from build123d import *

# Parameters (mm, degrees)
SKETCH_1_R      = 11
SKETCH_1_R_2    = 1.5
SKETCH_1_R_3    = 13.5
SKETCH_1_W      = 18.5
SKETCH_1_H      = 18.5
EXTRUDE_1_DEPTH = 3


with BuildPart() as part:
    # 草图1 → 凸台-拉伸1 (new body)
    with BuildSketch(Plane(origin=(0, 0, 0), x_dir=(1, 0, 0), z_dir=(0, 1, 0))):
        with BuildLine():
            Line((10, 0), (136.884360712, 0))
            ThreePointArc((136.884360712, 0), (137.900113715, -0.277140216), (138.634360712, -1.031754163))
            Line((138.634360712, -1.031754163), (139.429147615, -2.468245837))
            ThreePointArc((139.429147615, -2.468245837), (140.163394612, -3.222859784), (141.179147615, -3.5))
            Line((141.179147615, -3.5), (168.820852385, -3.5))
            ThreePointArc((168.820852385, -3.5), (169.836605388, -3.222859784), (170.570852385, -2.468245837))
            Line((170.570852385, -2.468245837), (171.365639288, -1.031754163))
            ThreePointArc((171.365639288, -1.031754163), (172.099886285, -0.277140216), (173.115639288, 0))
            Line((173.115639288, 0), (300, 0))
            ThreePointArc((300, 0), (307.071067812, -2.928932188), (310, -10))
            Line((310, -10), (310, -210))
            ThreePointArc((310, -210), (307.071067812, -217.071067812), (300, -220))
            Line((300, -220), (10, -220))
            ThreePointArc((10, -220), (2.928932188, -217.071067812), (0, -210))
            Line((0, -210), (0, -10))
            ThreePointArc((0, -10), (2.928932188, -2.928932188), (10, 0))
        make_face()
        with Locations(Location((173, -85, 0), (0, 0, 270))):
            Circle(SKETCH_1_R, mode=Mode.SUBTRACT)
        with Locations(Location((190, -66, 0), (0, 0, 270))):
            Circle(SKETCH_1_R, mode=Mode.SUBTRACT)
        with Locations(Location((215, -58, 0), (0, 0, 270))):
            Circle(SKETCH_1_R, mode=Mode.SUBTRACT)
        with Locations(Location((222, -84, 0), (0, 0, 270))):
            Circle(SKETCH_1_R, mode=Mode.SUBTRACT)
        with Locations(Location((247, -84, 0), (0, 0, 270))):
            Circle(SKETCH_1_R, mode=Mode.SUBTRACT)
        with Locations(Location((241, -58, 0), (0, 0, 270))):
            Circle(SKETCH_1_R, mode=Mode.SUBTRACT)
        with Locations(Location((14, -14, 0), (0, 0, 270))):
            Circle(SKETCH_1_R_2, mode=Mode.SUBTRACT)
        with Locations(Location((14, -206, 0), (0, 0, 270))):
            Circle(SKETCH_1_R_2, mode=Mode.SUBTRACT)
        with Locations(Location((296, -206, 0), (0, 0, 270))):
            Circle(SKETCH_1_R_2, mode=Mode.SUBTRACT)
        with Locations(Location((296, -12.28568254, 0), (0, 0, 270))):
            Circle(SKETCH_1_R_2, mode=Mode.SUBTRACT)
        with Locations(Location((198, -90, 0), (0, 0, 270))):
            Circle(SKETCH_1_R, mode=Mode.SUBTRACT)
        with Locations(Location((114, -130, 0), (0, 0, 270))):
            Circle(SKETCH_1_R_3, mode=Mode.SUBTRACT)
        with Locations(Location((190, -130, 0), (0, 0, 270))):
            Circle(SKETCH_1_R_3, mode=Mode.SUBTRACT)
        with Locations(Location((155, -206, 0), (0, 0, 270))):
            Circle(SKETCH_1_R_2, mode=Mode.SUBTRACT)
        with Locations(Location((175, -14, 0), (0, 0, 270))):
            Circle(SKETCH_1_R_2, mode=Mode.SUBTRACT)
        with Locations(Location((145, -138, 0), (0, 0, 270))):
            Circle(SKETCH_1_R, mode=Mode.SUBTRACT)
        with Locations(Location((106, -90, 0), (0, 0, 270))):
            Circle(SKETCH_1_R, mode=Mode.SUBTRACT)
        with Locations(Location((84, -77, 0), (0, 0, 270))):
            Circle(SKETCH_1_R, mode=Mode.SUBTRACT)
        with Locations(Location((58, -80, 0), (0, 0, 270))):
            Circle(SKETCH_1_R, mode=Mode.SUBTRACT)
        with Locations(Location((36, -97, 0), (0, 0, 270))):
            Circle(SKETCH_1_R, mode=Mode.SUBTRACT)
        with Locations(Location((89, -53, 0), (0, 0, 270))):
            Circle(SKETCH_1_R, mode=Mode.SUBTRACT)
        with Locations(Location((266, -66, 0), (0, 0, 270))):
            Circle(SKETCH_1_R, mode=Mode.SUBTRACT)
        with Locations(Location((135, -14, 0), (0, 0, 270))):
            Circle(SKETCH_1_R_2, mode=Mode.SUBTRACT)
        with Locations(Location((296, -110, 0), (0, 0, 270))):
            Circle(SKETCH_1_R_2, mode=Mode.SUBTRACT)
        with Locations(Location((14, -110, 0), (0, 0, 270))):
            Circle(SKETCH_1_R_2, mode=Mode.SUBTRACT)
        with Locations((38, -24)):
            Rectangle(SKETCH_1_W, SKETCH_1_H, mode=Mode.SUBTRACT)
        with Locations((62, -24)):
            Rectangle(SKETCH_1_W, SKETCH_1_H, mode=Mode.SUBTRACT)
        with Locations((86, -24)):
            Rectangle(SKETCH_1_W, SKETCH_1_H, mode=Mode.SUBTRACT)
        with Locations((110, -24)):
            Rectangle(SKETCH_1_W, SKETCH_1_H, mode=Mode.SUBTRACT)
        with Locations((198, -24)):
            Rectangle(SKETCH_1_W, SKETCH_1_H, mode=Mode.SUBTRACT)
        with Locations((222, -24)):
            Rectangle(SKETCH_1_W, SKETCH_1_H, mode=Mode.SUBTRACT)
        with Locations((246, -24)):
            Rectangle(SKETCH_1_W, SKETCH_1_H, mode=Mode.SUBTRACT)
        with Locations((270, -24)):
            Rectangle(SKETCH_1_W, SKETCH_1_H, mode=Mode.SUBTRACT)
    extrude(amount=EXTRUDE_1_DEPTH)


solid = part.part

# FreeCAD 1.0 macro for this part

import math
import FreeCAD as App
import Part
import Sketcher
from FreeCAD import Vector


def add_polygon(sketch, points):
    """Adds a closed chain of lines whose ends are joined by coincident constraints."""
    first, n = sketch.GeometryCount, len(points)
    for a, b in zip(points, points[1:] + points[:1]):
        sketch.addGeometry(Part.LineSegment(App.Vector(*a, 0), App.Vector(*b, 0)), False)
    for i in range(n):
        sketch.addConstraint(Sketcher.Constraint("Coincident", first + i, 2, first + (i + 1) % n, 1))

doc = App.newDocument("Part")
body = doc.addObject("PartDesign::Body", "Body")

sketch1 = body.newObject("Sketcher::SketchObject", "Sketch")
sketch1.AttachmentSupport = (doc.getObject("XZ_Plane"), [""])
sketch1.MapMode = "FlatFace"
sketch1.addGeometry(Part.LineSegment(Vector(136.9, 0, 0), Vector(10, 0, 0)), False)
sketch1.addGeometry(Part.ArcOfCircle(Part.Circle(Vector(10, 10, 0), Vector(0, 0, 1), 10), math.radians(180), math.radians(270)), False)
sketch1.addGeometry(Part.LineSegment(Vector(0, 10, 0), Vector(0, 210, 0)), False)
sketch1.addGeometry(Part.ArcOfCircle(Part.Circle(Vector(10, 210, 0), Vector(0, 0, 1), 10), math.radians(90), math.radians(180)), False)
sketch1.addGeometry(Part.LineSegment(Vector(10, 220, 0), Vector(300, 220, 0)), False)
sketch1.addGeometry(Part.ArcOfCircle(Part.Circle(Vector(300, 210, 0), Vector(0, 0, 1), 10), math.radians(0), math.radians(90)), False)
sketch1.addGeometry(Part.LineSegment(Vector(310, 210, 0), Vector(310, 10, 0)), False)
sketch1.addGeometry(Part.ArcOfCircle(Part.Circle(Vector(300, 10, 0), Vector(0, 0, 1), 10), math.radians(-90), math.radians(0)), False)
sketch1.addGeometry(Part.LineSegment(Vector(300, 0, 0), Vector(173.1, 0, 0)), False)
sketch1.addGeometry(Part.ArcOfCircle(Part.Circle(Vector(173.1, 2, 0), Vector(0, 0, 1), 2), math.radians(-151), math.radians(-90)), False)
sketch1.addGeometry(Part.LineSegment(Vector(171.4, 1, 0), Vector(170.6, 2.5, 0)), False)
sketch1.addGeometry(Part.ArcOfCircle(Part.Circle(Vector(168.8, 1.5, 0), Vector(0, 0, 1), 2), math.radians(29), math.radians(90)), False)
sketch1.addGeometry(Part.LineSegment(Vector(168.8, 3.5, 0), Vector(141.2, 3.5, 0)), False)
sketch1.addGeometry(Part.ArcOfCircle(Part.Circle(Vector(141.2, 1.5, 0), Vector(0, 0, 1), 2), math.radians(90), math.radians(151)), False)
sketch1.addGeometry(Part.LineSegment(Vector(139.4, 2.5, 0), Vector(138.6, 1, 0)), False)
sketch1.addGeometry(Part.ArcOfCircle(Part.Circle(Vector(136.9, 2, 0), Vector(0, 0, 1), 2), math.radians(-90), math.radians(-29)), False)
sketch1.addGeometry(Part.Circle(Vector(296, 206, 0), Vector(0, 0, 1), 1.5), False)
sketch1.addGeometry(Part.Circle(Vector(296, 110, 0), Vector(0, 0, 1), 1.5), False)
sketch1.addGeometry(Part.Circle(Vector(190, 130, 0), Vector(0, 0, 1), 13.5), False)
sketch1.addGeometry(Part.Circle(Vector(155, 206, 0), Vector(0, 0, 1), 1.5), False)
sketch1.addGeometry(Part.Circle(Vector(14, 206, 0), Vector(0, 0, 1), 1.5), False)
sketch1.addGeometry(Part.Circle(Vector(145, 138, 0), Vector(0, 0, 1), 11), False)
sketch1.addGeometry(Part.Circle(Vector(114, 130, 0), Vector(0, 0, 1), 13.5), False)
sketch1.addGeometry(Part.Circle(Vector(14, 110, 0), Vector(0, 0, 1), 1.5), False)
sketch1.addGeometry(Part.Circle(Vector(266, 66, 0), Vector(0, 0, 1), 11), False)
sketch1.addGeometry(Part.Circle(Vector(247, 84, 0), Vector(0, 0, 1), 11), False)
sketch1.addGeometry(Part.Circle(Vector(198, 90, 0), Vector(0, 0, 1), 11), False)
sketch1.addGeometry(Part.Circle(Vector(173, 85, 0), Vector(0, 0, 1), 11), False)
sketch1.addGeometry(Part.Circle(Vector(222, 84, 0), Vector(0, 0, 1), 11), False)
sketch1.addGeometry(Part.Circle(Vector(190, 66, 0), Vector(0, 0, 1), 11), False)
sketch1.addGeometry(Part.Circle(Vector(241, 58, 0), Vector(0, 0, 1), 11), False)
add_polygon(sketch1, [(260.8, 33.2), (260.8, 14.8), (279.2, 14.8), (279.2, 33.2)])
sketch1.addGeometry(Part.Circle(Vector(296, 12.3, 0), Vector(0, 0, 1), 1.5), False)
add_polygon(sketch1, [(236.8, 33.2), (236.8, 14.8), (255.2, 14.8), (255.2, 33.2)])
sketch1.addGeometry(Part.Circle(Vector(215, 58, 0), Vector(0, 0, 1), 11), False)
add_polygon(sketch1, [(212.8, 33.2), (212.8, 14.8), (231.2, 14.8), (231.2, 33.2)])
add_polygon(sketch1, [(188.8, 33.2), (188.8, 14.8), (207.2, 14.8), (207.2, 33.2)])
sketch1.addGeometry(Part.Circle(Vector(175, 14, 0), Vector(0, 0, 1), 1.5), False)
sketch1.addGeometry(Part.Circle(Vector(106, 90, 0), Vector(0, 0, 1), 11), False)
sketch1.addGeometry(Part.Circle(Vector(84, 77, 0), Vector(0, 0, 1), 11), False)
sketch1.addGeometry(Part.Circle(Vector(36, 97, 0), Vector(0, 0, 1), 11), False)
sketch1.addGeometry(Part.Circle(Vector(58, 80, 0), Vector(0, 0, 1), 11), False)
sketch1.addGeometry(Part.Circle(Vector(89, 53, 0), Vector(0, 0, 1), 11), False)
sketch1.addGeometry(Part.Circle(Vector(135, 14, 0), Vector(0, 0, 1), 1.5), False)
add_polygon(sketch1, [(100.8, 33.2), (100.8, 14.8), (119.2, 14.8), (119.2, 33.2)])
add_polygon(sketch1, [(76.8, 33.2), (76.8, 14.8), (95.2, 14.8), (95.2, 33.2)])
add_polygon(sketch1, [(52.8, 33.2), (52.8, 14.8), (71.2, 14.8), (71.2, 33.2)])
add_polygon(sketch1, [(28.8, 33.2), (28.8, 14.8), (47.2, 14.8), (47.2, 33.2)])
sketch1.addGeometry(Part.Circle(Vector(14, 14, 0), Vector(0, 0, 1), 1.5), False)
sketch1.addConstraint([
    Sketcher.Constraint("Tangent", 0, 2, 1, 2),
    Sketcher.Constraint("Tangent", 1, 1, 2, 1),
    Sketcher.Constraint("Tangent", 2, 2, 3, 2),
    Sketcher.Constraint("Tangent", 3, 1, 4, 1),
    Sketcher.Constraint("Tangent", 4, 2, 5, 2),
    Sketcher.Constraint("Tangent", 5, 1, 6, 1),
    Sketcher.Constraint("Tangent", 6, 2, 7, 2),
    Sketcher.Constraint("Tangent", 7, 1, 8, 1),
    Sketcher.Constraint("Tangent", 8, 2, 9, 2),
    Sketcher.Constraint("Tangent", 9, 1, 10, 1),
    Sketcher.Constraint("Tangent", 10, 2, 11, 1),
    Sketcher.Constraint("Tangent", 11, 2, 12, 1),
    Sketcher.Constraint("Tangent", 12, 2, 13, 1),
    Sketcher.Constraint("Tangent", 13, 2, 14, 1),
    Sketcher.Constraint("Tangent", 14, 2, 15, 2),
    Sketcher.Constraint("Tangent", 15, 1, 0, 1),
    Sketcher.Constraint("Horizontal", 0),
    Sketcher.Constraint("Vertical", 2),
    Sketcher.Constraint("Horizontal", 4),
    Sketcher.Constraint("Vertical", 6),
    Sketcher.Constraint("Horizontal", 8),
    Sketcher.Constraint("Horizontal", 12),
    Sketcher.Constraint("Vertical", 31),
    Sketcher.Constraint("Horizontal", 32),
    Sketcher.Constraint("Vertical", 33),
    Sketcher.Constraint("Horizontal", 34),
    Sketcher.Constraint("Vertical", 36),
    Sketcher.Constraint("Horizontal", 37),
    Sketcher.Constraint("Vertical", 38),
    Sketcher.Constraint("Horizontal", 39),
    Sketcher.Constraint("Vertical", 41),
    Sketcher.Constraint("Horizontal", 42),
    Sketcher.Constraint("Vertical", 43),
    Sketcher.Constraint("Horizontal", 44),
    Sketcher.Constraint("Vertical", 45),
    Sketcher.Constraint("Horizontal", 46),
    Sketcher.Constraint("Vertical", 47),
    Sketcher.Constraint("Horizontal", 48),
    Sketcher.Constraint("Vertical", 56),
    Sketcher.Constraint("Horizontal", 57),
    Sketcher.Constraint("Vertical", 58),
    Sketcher.Constraint("Horizontal", 59),
    Sketcher.Constraint("Vertical", 60),
    Sketcher.Constraint("Horizontal", 61),
    Sketcher.Constraint("Vertical", 62),
    Sketcher.Constraint("Horizontal", 63),
    Sketcher.Constraint("Vertical", 64),
    Sketcher.Constraint("Horizontal", 65),
    Sketcher.Constraint("Vertical", 66),
    Sketcher.Constraint("Horizontal", 67),
    Sketcher.Constraint("Vertical", 68),
    Sketcher.Constraint("Horizontal", 69),
    Sketcher.Constraint("Vertical", 70),
    Sketcher.Constraint("Horizontal", 71),
    Sketcher.Constraint("Equal", 1, 3),
    Sketcher.Constraint("Equal", 3, 5),
    Sketcher.Constraint("Equal", 5, 7),
    Sketcher.Constraint("Equal", 9, 11),
    Sketcher.Constraint("Equal", 11, 13),
    Sketcher.Constraint("Equal", 13, 15),
    Sketcher.Constraint("Equal", 16, 17),
    Sketcher.Constraint("Equal", 17, 19),
    Sketcher.Constraint("Equal", 19, 20),
    Sketcher.Constraint("Equal", 18, 22),
    Sketcher.Constraint("Equal", 20, 23),
    Sketcher.Constraint("Equal", 21, 24),
    Sketcher.Constraint("Equal", 24, 25),
    Sketcher.Constraint("Equal", 25, 26),
    Sketcher.Constraint("Equal", 26, 27),
    Sketcher.Constraint("Equal", 27, 28),
    Sketcher.Constraint("Equal", 28, 29),
    Sketcher.Constraint("Equal", 29, 30),
    Sketcher.Constraint("Equal", 23, 35),
    Sketcher.Constraint("Equal", 30, 40),
    Sketcher.Constraint("Equal", 35, 49),
    Sketcher.Constraint("Equal", 40, 50),
    Sketcher.Constraint("Equal", 50, 51),
    Sketcher.Constraint("Equal", 51, 52),
    Sketcher.Constraint("Equal", 52, 53),
    Sketcher.Constraint("Equal", 53, 54),
    Sketcher.Constraint("Equal", 49, 55),
    Sketcher.Constraint("Equal", 55, 72),
    Sketcher.Constraint("PointOnObject", 0, 2, -1),
    Sketcher.Constraint("PointOnObject", 1, 1, -2),
    Sketcher.Constraint("PointOnObject", 7, 1, -1),
    Sketcher.Constraint("Horizontal", 16, 3, 19, 3),
    Sketcher.Constraint("Horizontal", 19, 3, 20, 3),
    Sketcher.Constraint("Horizontal", 18, 3, 22, 3),
    Sketcher.Constraint("Horizontal", 17, 3, 23, 3),
    Sketcher.Constraint("Horizontal", 25, 3, 28, 3),
    Sketcher.Constraint("Horizontal", 24, 3, 29, 3),
    Sketcher.Constraint("Horizontal", 30, 3, 40, 3),
    Sketcher.Constraint("Horizontal", 26, 3, 50, 3),
    Sketcher.Constraint("Horizontal", 49, 3, 55, 3),
    Sketcher.Constraint("Horizontal", 55, 3, 72, 3),
    Sketcher.Constraint("Horizontal", 10, 2, 13, 2),
    Sketcher.Constraint("Horizontal", 32, 2, 36, 2),
    Sketcher.Constraint("Horizontal", 34, 2, 38, 2),
    Sketcher.Constraint("Horizontal", 37, 2, 41, 2),
    Sketcher.Constraint("Horizontal", 39, 2, 43, 2),
    Sketcher.Constraint("Horizontal", 42, 2, 45, 2),
    Sketcher.Constraint("Horizontal", 44, 2, 47, 2),
    Sketcher.Constraint("Horizontal", 46, 2, 56, 2),
    Sketcher.Constraint("Horizontal", 48, 2, 58, 2),
    Sketcher.Constraint("Horizontal", 57, 2, 60, 2),
    Sketcher.Constraint("Horizontal", 59, 2, 62, 2),
    Sketcher.Constraint("Horizontal", 61, 2, 64, 2),
    Sketcher.Constraint("Horizontal", 63, 2, 66, 2),
    Sketcher.Constraint("Horizontal", 65, 2, 68, 2),
    Sketcher.Constraint("Horizontal", 67, 2, 70, 2),
    Sketcher.Constraint("Vertical", 16, 3, 17, 3),
    Sketcher.Constraint("Vertical", 20, 3, 23, 3),
    Sketcher.Constraint("Vertical", 18, 3, 29, 3),
    Sketcher.Constraint("Vertical", 17, 3, 35, 3),
    Sketcher.Constraint("Vertical", 23, 3, 72, 3),
    Sketcher.Constraint("Equal", 0, 8),
    Sketcher.Constraint("Equal", 34, 37),
    Sketcher.Constraint("Equal", 39, 42),
    Sketcher.Constraint("Equal", 44, 46),
    Sketcher.Constraint("Equal", 48, 57),
    Sketcher.Constraint("Equal", 59, 61),
    Sketcher.Constraint("Equal", 63, 65),
    Sketcher.Constraint("Equal", 67, 69),
    Sketcher.Constraint("Equal", 71, 31),
    Sketcher.Constraint("Diameter", 16, 3.0),
    Sketcher.Constraint("Diameter", 18, 27.0),
    Sketcher.Constraint("Diameter", 21, 22.0),
    Sketcher.Constraint("Radius", 1, 10.0),
    Sketcher.Constraint("Radius", 9, 2.0),
    Sketcher.Constraint("DistanceX", 4, 1, 4, 2, 290.0),
    Sketcher.Constraint("DistanceY", 2, 1, 2, 2, 200.0),
    Sketcher.Constraint("DistanceX", 32, 1, 32, 2, 18.5),
    Sketcher.Constraint("DistanceX", -1, 1, 16, 3, 296.0),
    Sketcher.Constraint("DistanceY", -1, 1, 16, 3, 206.0),
    Sketcher.Constraint("DistanceY", -1, 1, 17, 3, 110.0),
    Sketcher.Constraint("DistanceX", -1, 1, 18, 3, 190.0),
    Sketcher.Constraint("DistanceY", -1, 1, 18, 3, 130.0),
    Sketcher.Constraint("DistanceX", -1, 1, 19, 3, 155.0),
    Sketcher.Constraint("DistanceX", -1, 1, 20, 3, 14.0),
    Sketcher.Constraint("DistanceX", -1, 1, 21, 3, 145.0),
    Sketcher.Constraint("DistanceY", -1, 1, 21, 3, 138.0),
    Sketcher.Constraint("DistanceX", -1, 1, 22, 3, 114.0),
    Sketcher.Constraint("DistanceX", -1, 1, 24, 3, 266.0),
    Sketcher.Constraint("DistanceY", -1, 1, 24, 3, 66.0),
    Sketcher.Constraint("DistanceX", -1, 1, 25, 3, 247.0),
    Sketcher.Constraint("DistanceY", -1, 1, 25, 3, 84.0),
    Sketcher.Constraint("DistanceX", -1, 1, 26, 3, 198.0),
    Sketcher.Constraint("DistanceY", -1, 1, 26, 3, 90.0),
    Sketcher.Constraint("DistanceX", -1, 1, 27, 3, 173.0),
    Sketcher.Constraint("DistanceY", -1, 1, 27, 3, 85.0),
    Sketcher.Constraint("DistanceX", -1, 1, 28, 3, 222.0),
    Sketcher.Constraint("DistanceX", -1, 1, 30, 3, 241.0),
    Sketcher.Constraint("DistanceY", -1, 1, 30, 3, 58.0),
    Sketcher.Constraint("DistanceX", -1, 1, 40, 3, 215.0),
    Sketcher.Constraint("DistanceX", -1, 1, 49, 3, 175.0),
    Sketcher.Constraint("DistanceY", -1, 1, 49, 3, 14.0),
    Sketcher.Constraint("DistanceX", -1, 1, 50, 3, 106.0),
    Sketcher.Constraint("DistanceX", -1, 1, 51, 3, 84.0),
    Sketcher.Constraint("DistanceY", -1, 1, 51, 3, 77.0),
    Sketcher.Constraint("DistanceX", -1, 1, 52, 3, 36.0),
    Sketcher.Constraint("DistanceY", -1, 1, 52, 3, 97.0),
    Sketcher.Constraint("DistanceX", -1, 1, 53, 3, 58.0),
    Sketcher.Constraint("DistanceY", -1, 1, 53, 3, 80.0),
    Sketcher.Constraint("DistanceX", -1, 1, 54, 3, 89.0),
    Sketcher.Constraint("DistanceY", -1, 1, 54, 3, 53.0),
    Sketcher.Constraint("DistanceX", -1, 1, 55, 3, 135.0),
    Sketcher.Constraint("DistanceY", -1, 1, 11, 3, 1.5),
    Sketcher.Constraint("DistanceX", -1, 1, 31, 2, 260.75),
    Sketcher.Constraint("DistanceY", -1, 1, 31, 2, 14.75),
    Sketcher.Constraint("DistanceX", -1, 1, 36, 2, 236.75),
    Sketcher.Constraint("DistanceX", -1, 1, 41, 2, 212.75),
    Sketcher.Constraint("DistanceX", -1, 1, 45, 2, 188.75),
    Sketcher.Constraint("DistanceX", -1, 1, 56, 2, 100.75),
    Sketcher.Constraint("DistanceX", -1, 1, 60, 2, 76.75),
    Sketcher.Constraint("DistanceX", -1, 1, 64, 2, 52.75),
    Sketcher.Constraint("DistanceX", -1, 1, 68, 2, 28.75),
    Sketcher.Constraint("DistanceX", 0, 2, 0, 1, 126.884361),
    Sketcher.Constraint("DistanceX", 12, 2, 12, 1, 27.641705),
    Sketcher.Constraint("DistanceY", -1, 1, 35, 3, 12.285683),
])
pad1 = body.newObject("PartDesign::Pad", "Pad")
pad1.Profile = sketch1
pad1.Length = 3
pad1.Reversed = True

doc.recompute()
